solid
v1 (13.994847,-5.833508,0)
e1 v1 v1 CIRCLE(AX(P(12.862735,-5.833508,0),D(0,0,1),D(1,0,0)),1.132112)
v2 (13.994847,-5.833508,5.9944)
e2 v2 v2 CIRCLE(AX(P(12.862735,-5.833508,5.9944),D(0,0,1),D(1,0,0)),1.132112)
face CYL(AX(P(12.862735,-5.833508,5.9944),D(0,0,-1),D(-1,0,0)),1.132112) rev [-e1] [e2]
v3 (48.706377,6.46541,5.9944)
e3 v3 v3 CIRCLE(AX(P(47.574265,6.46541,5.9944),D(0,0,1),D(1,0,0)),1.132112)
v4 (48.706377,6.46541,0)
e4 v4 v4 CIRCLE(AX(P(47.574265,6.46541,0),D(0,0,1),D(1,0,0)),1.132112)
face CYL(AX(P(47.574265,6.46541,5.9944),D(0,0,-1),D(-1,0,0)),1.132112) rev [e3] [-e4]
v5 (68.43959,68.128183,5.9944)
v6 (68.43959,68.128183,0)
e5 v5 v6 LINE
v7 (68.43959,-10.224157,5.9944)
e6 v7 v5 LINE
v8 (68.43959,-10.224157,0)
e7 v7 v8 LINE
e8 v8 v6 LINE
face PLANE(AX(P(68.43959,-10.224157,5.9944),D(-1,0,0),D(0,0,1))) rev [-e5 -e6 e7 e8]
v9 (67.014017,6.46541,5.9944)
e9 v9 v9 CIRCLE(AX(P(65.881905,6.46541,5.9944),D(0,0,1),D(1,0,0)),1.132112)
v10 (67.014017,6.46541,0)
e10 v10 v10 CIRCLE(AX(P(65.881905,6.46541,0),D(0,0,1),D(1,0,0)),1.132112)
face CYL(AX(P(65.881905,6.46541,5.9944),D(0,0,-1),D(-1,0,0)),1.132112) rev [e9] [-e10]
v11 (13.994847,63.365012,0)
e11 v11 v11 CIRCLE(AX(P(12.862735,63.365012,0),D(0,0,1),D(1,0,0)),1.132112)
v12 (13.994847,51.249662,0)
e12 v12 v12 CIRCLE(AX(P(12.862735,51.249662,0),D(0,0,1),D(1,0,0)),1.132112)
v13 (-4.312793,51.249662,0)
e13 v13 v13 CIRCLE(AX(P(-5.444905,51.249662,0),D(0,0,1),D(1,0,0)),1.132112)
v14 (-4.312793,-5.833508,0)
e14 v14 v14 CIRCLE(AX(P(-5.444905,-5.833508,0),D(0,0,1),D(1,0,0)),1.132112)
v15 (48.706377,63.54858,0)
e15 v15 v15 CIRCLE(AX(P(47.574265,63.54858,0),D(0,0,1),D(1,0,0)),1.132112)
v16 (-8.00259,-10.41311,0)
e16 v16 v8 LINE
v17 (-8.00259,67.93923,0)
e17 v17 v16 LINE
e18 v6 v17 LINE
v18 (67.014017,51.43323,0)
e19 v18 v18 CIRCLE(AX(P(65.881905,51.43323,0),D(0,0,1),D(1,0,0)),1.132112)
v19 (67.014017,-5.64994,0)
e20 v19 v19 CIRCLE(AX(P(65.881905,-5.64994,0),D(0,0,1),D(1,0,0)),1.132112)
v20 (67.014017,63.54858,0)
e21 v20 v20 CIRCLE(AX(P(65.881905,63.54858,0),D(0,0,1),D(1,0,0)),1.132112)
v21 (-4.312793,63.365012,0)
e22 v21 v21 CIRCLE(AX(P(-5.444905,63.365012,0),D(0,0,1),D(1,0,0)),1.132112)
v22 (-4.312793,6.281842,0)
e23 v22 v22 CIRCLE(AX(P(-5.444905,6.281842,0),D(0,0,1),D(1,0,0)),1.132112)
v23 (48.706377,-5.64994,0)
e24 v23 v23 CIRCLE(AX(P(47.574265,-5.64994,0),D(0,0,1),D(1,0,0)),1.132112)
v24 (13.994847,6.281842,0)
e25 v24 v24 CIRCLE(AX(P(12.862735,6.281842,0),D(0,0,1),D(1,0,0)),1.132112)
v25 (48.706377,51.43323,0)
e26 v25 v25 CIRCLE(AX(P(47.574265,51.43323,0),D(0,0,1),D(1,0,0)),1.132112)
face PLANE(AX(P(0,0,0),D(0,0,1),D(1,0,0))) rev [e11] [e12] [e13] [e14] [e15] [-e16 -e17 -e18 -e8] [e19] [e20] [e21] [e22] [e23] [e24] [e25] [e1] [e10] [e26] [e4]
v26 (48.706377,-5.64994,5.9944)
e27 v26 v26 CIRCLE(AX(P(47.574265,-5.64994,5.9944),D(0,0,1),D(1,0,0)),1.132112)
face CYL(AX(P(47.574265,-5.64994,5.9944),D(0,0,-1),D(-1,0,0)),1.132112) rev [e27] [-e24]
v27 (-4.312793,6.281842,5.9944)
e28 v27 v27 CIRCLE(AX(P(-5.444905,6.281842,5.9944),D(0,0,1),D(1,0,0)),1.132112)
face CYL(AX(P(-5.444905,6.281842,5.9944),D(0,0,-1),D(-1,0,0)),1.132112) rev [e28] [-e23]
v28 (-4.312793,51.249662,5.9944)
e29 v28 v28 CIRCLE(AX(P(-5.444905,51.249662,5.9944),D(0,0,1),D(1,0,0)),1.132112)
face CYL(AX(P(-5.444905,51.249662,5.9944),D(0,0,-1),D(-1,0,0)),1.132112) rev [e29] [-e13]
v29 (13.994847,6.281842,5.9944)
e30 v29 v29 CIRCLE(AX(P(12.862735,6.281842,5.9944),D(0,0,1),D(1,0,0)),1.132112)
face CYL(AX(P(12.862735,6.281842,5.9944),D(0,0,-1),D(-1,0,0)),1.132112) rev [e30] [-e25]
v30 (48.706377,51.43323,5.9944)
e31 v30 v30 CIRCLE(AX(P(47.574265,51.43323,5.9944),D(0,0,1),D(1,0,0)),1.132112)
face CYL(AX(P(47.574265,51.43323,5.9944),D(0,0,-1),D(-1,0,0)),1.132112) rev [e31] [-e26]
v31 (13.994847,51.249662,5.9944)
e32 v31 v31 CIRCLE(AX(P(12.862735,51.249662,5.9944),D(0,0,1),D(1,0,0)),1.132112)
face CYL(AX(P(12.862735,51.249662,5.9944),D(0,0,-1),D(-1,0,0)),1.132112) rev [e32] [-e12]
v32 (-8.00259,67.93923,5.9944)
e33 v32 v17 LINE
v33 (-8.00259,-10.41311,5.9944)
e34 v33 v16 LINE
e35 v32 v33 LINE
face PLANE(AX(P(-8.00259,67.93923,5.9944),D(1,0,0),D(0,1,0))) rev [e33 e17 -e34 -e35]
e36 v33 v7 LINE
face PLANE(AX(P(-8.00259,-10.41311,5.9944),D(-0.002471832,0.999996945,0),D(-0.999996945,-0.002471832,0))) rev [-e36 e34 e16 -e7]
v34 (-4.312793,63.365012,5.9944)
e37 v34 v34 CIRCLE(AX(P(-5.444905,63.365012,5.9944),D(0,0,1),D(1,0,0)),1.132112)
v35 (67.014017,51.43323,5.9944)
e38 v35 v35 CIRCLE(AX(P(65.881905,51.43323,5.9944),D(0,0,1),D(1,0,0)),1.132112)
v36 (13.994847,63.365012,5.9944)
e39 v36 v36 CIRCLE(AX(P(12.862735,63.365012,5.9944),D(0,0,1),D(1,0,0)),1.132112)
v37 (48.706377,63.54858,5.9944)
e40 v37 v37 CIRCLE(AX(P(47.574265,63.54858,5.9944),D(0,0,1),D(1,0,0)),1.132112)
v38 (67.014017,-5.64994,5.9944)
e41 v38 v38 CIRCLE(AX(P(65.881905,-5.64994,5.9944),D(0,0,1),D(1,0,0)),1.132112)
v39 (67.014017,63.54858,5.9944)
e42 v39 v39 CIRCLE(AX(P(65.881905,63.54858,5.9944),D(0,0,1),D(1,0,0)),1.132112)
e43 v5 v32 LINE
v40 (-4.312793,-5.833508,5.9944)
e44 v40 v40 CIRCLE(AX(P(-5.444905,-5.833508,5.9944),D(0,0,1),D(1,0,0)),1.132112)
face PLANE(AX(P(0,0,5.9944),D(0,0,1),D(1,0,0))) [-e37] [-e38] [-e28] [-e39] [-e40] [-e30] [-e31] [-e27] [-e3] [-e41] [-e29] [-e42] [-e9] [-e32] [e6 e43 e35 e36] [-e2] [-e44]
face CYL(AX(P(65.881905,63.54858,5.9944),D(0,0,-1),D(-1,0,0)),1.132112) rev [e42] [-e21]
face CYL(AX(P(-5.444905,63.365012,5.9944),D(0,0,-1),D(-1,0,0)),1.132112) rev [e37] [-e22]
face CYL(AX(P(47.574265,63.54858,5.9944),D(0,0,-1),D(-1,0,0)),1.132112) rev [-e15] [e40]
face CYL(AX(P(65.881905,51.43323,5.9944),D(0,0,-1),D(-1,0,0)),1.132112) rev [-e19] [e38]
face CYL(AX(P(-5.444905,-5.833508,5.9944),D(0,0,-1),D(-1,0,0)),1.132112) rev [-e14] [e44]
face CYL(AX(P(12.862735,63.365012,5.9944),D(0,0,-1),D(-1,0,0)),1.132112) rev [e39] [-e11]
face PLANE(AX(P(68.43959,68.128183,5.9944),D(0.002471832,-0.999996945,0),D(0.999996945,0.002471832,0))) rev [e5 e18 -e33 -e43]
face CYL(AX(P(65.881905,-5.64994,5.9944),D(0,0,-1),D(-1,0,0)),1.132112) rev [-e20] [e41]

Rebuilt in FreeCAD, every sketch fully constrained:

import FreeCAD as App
import Part
import Sketcher
Q = App.Units.Quantity


def add_polygon(sketch, points):
    """Adds a closed chain of lines whose ends are joined by coincident constraints."""
    first, n = sketch.GeometryCount, len(points)
    for a, b in zip(points, points[1:] + points[:1]):
        sketch.addGeometry(Part.LineSegment(App.Vector(*a, 0), App.Vector(*b, 0)), False)
    for i in range(n):
        sketch.addConstraint(Sketcher.Constraint("Coincident", first + i, 2, first + (i + 1) % n, 1))

doc = App.newDocument("Part")
body = doc.addObject("PartDesign::Body", "Body")

sketch1 = body.newObject("Sketcher::SketchObject", "Sketch")
sketch1.AttachmentSupport = (doc.getObject("XY_Plane"), [""])
sketch1.MapMode = "FlatFace"
add_polygon(sketch1, [(68.4, -10.2), (68.4, 68.1), (-8, 67.9), (-8, -10.4)])
sketch1.addGeometry(Part.Circle(App.Vector(-5.4, -5.8, 0), App.Vector(0, 0, 1), 1.1), False)
sketch1.addGeometry(Part.Circle(App.Vector(-5.4, 6.3, 0), App.Vector(0, 0, 1), 1.1), False)
sketch1.addGeometry(Part.Circle(App.Vector(12.9, -5.8, 0), App.Vector(0, 0, 1), 1.1), False)
sketch1.addGeometry(Part.Circle(App.Vector(12.9, 6.3, 0), App.Vector(0, 0, 1), 1.1), False)
sketch1.addGeometry(Part.Circle(App.Vector(47.6, -5.6, 0), App.Vector(0, 0, 1), 1.1), False)
sketch1.addGeometry(Part.Circle(App.Vector(47.6, 6.5, 0), App.Vector(0, 0, 1), 1.1), False)
sketch1.addGeometry(Part.Circle(App.Vector(65.9, -5.6, 0), App.Vector(0, 0, 1), 1.1), False)
sketch1.addGeometry(Part.Circle(App.Vector(65.9, 6.5, 0), App.Vector(0, 0, 1), 1.1), False)
sketch1.addGeometry(Part.Circle(App.Vector(-5.4, 51.2, 0), App.Vector(0, 0, 1), 1.1), False)
sketch1.addGeometry(Part.Circle(App.Vector(-5.4, 63.4, 0), App.Vector(0, 0, 1), 1.1), False)
sketch1.addGeometry(Part.Circle(App.Vector(12.9, 51.2, 0), App.Vector(0, 0, 1), 1.1), False)
sketch1.addGeometry(Part.Circle(App.Vector(12.9, 63.4, 0), App.Vector(0, 0, 1), 1.1), False)
sketch1.addGeometry(Part.Circle(App.Vector(47.6, 51.4, 0), App.Vector(0, 0, 1), 1.1), False)
sketch1.addGeometry(Part.Circle(App.Vector(47.6, 63.5, 0), App.Vector(0, 0, 1), 1.1), False)
sketch1.addGeometry(Part.Circle(App.Vector(65.9, 51.4, 0), App.Vector(0, 0, 1), 1.1), False)
sketch1.addGeometry(Part.Circle(App.Vector(65.9, 63.5, 0), App.Vector(0, 0, 1), 1.1), False)
sketch1.addConstraint(Sketcher.Constraint("Vertical", 0))
sketch1.addConstraint(Sketcher.Constraint("Vertical", 2))
sketch1.addConstraint(Sketcher.Constraint("Equal", 4, 5))
sketch1.addConstraint(Sketcher.Constraint("Equal", 5, 6))
sketch1.addConstraint(Sketcher.Constraint("Equal", 6, 7))
sketch1.addConstraint(Sketcher.Constraint("Equal", 7, 8))
sketch1.addConstraint(Sketcher.Constraint("Equal", 8, 9))
sketch1.addConstraint(Sketcher.Constraint("Equal", 9, 10))
sketch1.addConstraint(Sketcher.Constraint("Equal", 10, 11))
sketch1.addConstraint(Sketcher.Constraint("Equal", 11, 12))
sketch1.addConstraint(Sketcher.Constraint("Equal", 12, 13))
sketch1.addConstraint(Sketcher.Constraint("Equal", 13, 14))
sketch1.addConstraint(Sketcher.Constraint("Equal", 14, 15))
sketch1.addConstraint(Sketcher.Constraint("Equal", 15, 16))
sketch1.addConstraint(Sketcher.Constraint("Equal", 16, 17))
sketch1.addConstraint(Sketcher.Constraint("Equal", 17, 18))
sketch1.addConstraint(Sketcher.Constraint("Equal", 18, 19))
sketch1.addConstraint(Sketcher.Constraint("Parallel", 1, 3))
sketch1.addConstraint(Sketcher.Constraint("Horizontal", 4, 3, 6, 3))
sketch1.addConstraint(Sketcher.Constraint("Horizontal", 5, 3, 7, 3))
sketch1.addConstraint(Sketcher.Constraint("Horizontal", 8, 3, 10, 3))
sketch1.addConstraint(Sketcher.Constraint("Horizontal", 9, 3, 11, 3))
sketch1.addConstraint(Sketcher.Constraint("Horizontal", 12, 3, 14, 3))
sketch1.addConstraint(Sketcher.Constraint("Horizontal", 13, 3, 15, 3))
sketch1.addConstraint(Sketcher.Constraint("Horizontal", 16, 3, 18, 3))
sketch1.addConstraint(Sketcher.Constraint("Horizontal", 17, 3, 19, 3))
sketch1.addConstraint(Sketcher.Constraint("Vertical", 4, 3, 5, 3))
sketch1.addConstraint(Sketcher.Constraint("Vertical", 6, 3, 7, 3))
sketch1.addConstraint(Sketcher.Constraint("Vertical", 8, 3, 9, 3))
sketch1.addConstraint(Sketcher.Constraint("Vertical", 10, 3, 11, 3))
sketch1.addConstraint(Sketcher.Constraint("Vertical", 5, 3, 12, 3))
sketch1.addConstraint(Sketcher.Constraint("Vertical", 12, 3, 13, 3))
sketch1.addConstraint(Sketcher.Constraint("Vertical", 7, 3, 14, 3))
sketch1.addConstraint(Sketcher.Constraint("Vertical", 14, 3, 15, 3))
sketch1.addConstraint(Sketcher.Constraint("Vertical", 9, 3, 16, 3))
sketch1.addConstraint(Sketcher.Constraint("Vertical", 16, 3, 17, 3))
sketch1.addConstraint(Sketcher.Constraint("Vertical", 11, 3, 18, 3))
sketch1.addConstraint(Sketcher.Constraint("Vertical", 18, 3, 19, 3))
sketch1.addConstraint(Sketcher.Constraint("Diameter", 4, Q("2.264224 mm")))
sketch1.addConstraint(Sketcher.Constraint("DistanceY", 0, 1, 0, 2, Q("78.35234 mm")))
sketch1.addConstraint(Sketcher.Constraint("DistanceY", 8, 3, -1, 1, Q("5.64994 mm")))
sketch1.addConstraint(Sketcher.Constraint("DistanceY", -1, 1, 9, 3, Q("6.46541 mm")))
sketch1.addConstraint(Sketcher.Constraint("DistanceY", -1, 1, 16, 3, Q("51.43323 mm")))
sketch1.addConstraint(Sketcher.Constraint("DistanceY", -1, 1, 17, 3, Q("63.54858 mm")))
sketch1.addConstraint(Sketcher.Constraint("DistanceX", -1, 1, 0, 2, Q("68.43959 mm")))
sketch1.addConstraint(Sketcher.Constraint("DistanceX", 1, 2, -1, 1, Q("8.00259 mm")))
sketch1.addConstraint(Sketcher.Constraint("DistanceY", -1, 1, 1, 2, Q("67.93923 mm")))
sketch1.addConstraint(Sketcher.Constraint("DistanceY", 4, 3, 5, 3, Q("12.11535 mm")))
sketch1.addConstraint(Sketcher.Constraint("DistanceX", 4, 3, 6, 3, Q("18.30764 mm")))
sketch1.addConstraint(Sketcher.Constraint("DistanceX", 6, 3, 8, 3, Q("34.71153 mm")))
sketch1.addConstraint(Sketcher.Constraint("DistanceY", 6, 3, 8, 3, Q("0.183568 mm")))
sketch1.addConstraint(Sketcher.Constraint("DistanceX", 8, 3, 10, 3, Q("18.30764 mm")))
sketch1.addConstraint(Sketcher.Constraint("DistanceY", 5, 3, 12, 3, Q("44.96782 mm")))
sketch1.addConstraint(Sketcher.Constraint("DistanceY", 12, 3, 13, 3, Q("12.11535 mm")))
sketch1.addConstraint(Sketcher.Constraint("DistanceY", 15, 3, 0, 2, Q("4.76317 mm")))
sketch1.addConstraint(Sketcher.Constraint("DistanceX", 4, 3, -1, 1, Q("5.444905 mm")))
pad1 = body.newObject("PartDesign::Pad", "Pad")
pad1.Profile = sketch1
pad1.Length = Q("0.236 in")

doc.recompute()
